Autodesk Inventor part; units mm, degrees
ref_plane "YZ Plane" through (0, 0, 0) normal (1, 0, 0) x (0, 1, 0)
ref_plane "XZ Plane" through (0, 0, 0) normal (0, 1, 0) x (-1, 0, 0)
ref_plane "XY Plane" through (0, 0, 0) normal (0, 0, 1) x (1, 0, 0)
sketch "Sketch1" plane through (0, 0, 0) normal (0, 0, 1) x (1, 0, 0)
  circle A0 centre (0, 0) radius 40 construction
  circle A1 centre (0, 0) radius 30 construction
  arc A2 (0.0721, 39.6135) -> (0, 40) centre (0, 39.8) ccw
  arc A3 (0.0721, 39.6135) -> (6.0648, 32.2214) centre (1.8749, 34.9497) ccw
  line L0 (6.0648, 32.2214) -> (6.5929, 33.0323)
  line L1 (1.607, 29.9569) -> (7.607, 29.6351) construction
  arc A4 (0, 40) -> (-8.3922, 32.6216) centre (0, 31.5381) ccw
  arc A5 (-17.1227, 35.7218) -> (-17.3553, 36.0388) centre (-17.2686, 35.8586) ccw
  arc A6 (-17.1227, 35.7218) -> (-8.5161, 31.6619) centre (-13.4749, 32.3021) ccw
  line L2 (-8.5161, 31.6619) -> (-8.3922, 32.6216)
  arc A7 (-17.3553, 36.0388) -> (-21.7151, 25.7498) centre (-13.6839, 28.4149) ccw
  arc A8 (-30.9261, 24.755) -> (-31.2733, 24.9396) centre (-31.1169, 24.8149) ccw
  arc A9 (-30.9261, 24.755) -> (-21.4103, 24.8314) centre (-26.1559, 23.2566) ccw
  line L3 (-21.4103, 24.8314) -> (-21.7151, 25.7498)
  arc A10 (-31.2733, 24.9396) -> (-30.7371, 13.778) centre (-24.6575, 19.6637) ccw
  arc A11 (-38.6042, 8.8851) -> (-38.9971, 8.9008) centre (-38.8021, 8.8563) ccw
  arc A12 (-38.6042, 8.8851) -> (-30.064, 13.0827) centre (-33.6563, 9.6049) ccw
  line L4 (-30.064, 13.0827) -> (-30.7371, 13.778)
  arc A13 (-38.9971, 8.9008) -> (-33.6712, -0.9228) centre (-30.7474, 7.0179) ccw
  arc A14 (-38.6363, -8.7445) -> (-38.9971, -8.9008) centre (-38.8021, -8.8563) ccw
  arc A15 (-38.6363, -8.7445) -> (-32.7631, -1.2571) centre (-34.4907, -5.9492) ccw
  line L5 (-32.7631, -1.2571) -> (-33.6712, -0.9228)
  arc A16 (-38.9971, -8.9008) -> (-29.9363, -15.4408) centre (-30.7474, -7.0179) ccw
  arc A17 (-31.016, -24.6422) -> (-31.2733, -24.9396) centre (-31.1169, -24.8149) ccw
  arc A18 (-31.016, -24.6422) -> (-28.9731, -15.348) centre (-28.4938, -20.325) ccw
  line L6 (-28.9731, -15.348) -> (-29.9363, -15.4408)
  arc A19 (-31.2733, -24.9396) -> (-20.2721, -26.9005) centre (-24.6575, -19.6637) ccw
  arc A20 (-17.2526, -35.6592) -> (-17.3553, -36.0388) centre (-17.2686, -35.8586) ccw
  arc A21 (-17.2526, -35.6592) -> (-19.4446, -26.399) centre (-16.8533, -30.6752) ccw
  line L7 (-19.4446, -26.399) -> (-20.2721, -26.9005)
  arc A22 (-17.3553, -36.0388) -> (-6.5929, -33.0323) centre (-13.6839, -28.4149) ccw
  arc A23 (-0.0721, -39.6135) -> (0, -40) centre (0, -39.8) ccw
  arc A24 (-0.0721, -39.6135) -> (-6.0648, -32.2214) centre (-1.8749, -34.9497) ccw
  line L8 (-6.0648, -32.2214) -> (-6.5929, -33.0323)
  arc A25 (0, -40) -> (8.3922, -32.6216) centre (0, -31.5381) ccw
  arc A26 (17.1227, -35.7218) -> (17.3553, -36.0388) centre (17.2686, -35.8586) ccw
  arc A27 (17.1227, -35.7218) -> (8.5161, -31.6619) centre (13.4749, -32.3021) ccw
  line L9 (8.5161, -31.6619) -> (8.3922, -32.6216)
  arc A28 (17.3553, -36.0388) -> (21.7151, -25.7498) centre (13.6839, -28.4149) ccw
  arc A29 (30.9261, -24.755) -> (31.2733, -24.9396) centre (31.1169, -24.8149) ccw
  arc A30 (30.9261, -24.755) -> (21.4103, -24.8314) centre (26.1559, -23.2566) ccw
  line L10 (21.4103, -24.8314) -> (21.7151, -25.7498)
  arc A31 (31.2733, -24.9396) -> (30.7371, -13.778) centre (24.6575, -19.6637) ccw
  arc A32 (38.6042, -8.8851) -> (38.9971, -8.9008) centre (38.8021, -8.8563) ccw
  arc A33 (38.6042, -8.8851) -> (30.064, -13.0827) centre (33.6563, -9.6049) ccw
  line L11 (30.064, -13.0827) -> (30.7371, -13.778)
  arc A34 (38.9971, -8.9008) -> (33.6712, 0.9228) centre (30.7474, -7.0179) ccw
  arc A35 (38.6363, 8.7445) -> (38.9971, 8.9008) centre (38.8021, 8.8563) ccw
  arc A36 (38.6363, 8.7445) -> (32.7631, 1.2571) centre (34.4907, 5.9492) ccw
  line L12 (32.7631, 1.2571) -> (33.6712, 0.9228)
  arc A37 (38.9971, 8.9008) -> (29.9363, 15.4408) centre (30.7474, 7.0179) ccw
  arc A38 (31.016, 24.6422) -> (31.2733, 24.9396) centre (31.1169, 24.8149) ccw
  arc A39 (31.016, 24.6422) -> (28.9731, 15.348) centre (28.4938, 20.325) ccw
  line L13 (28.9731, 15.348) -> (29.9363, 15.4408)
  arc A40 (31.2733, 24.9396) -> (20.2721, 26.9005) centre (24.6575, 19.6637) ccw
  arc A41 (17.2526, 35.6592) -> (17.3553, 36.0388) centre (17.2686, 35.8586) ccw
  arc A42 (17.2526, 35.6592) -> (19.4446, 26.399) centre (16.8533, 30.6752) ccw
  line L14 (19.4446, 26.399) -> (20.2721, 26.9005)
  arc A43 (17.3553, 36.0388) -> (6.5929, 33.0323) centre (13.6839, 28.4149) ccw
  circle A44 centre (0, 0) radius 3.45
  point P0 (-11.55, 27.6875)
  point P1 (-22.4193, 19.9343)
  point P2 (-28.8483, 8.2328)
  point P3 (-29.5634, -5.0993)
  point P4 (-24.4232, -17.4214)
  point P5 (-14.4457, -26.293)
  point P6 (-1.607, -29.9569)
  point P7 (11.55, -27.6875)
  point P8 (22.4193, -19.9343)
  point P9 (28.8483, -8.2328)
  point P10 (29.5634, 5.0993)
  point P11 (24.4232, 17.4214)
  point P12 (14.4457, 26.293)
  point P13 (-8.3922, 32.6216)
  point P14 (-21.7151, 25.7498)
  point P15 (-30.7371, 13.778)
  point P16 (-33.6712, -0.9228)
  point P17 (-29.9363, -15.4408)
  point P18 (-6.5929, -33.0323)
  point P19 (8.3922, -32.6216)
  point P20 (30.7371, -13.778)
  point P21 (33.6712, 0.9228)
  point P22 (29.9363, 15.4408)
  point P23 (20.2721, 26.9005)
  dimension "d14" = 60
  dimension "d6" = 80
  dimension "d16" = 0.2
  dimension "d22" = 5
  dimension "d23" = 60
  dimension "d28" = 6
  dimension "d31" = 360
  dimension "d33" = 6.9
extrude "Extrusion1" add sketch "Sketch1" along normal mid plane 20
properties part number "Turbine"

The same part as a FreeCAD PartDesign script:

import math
import FreeCAD as App
import Part
import Sketcher

V = App.Vector

doc = App.newDocument("Part")
body = doc.addObject("PartDesign::Body", "Body")

sketch1 = doc.addObject("Sketcher::SketchObject", "Sketch")
body.addObject(sketch1)
sketch1.AttachmentSupport = (doc.XY_Plane, [""])
sketch1.MapMode = "FlatFace"
sketch1.addGeometry([
    Part.ArcOfCircle(Part.Circle(V(1.8749, 34.9497, 0), V(0, 0, 1), 5.000112), math.radians(111.134096), math.radians(326.929389)),
    Part.ArcOfCircle(Part.Circle(V(0, 39.8, 0), V(0, 0, 1), 0.199952), math.radians(-68.863739), math.radians(90)),
    Part.ArcOfCircle(Part.Circle(V(0, 31.5381, 0), V(0, 0, 1), 8.4619), math.radians(90), math.radians(172.643353)),
    Part.LineSegment(V(-8.3922, 32.6216, 0), V(-8.5161, 31.6619, 0)),
    Part.ArcOfCircle(Part.Circle(V(-13.4749, 32.3021, 0), V(0, 0, 1), 5.000079), math.radians(136.848551), math.radians(352.643588)),
    Part.ArcOfCircle(Part.Circle(V(-17.2686, 35.8586, 0), V(0, 0, 1), 0.200003), math.radians(-43.156308), math.radians(115.6937)),
    Part.ArcOfCircle(Part.Circle(V(-13.6839, 28.4149, 0), V(0, 0, 1), 8.461857), math.radians(115.713818), math.radians(198.35808)),
    Part.LineSegment(V(-21.7151, 25.7498, 0), V(-21.4103, 24.8314, 0)),
    Part.ArcOfCircle(Part.Circle(V(-26.1559, 23.2566, 0), V(0, 0, 1), 5.000001), math.radians(162.56162), math.radians(378.358127)),
    Part.ArcOfCircle(Part.Circle(V(-31.1169, 24.8149, 0), V(0, 0, 1), 0.199982), math.radians(-17.429227), math.radians(141.434134)),
    Part.ArcOfCircle(Part.Circle(V(-24.6575, 19.6637, 0), V(0, 0, 1), 8.461911), math.radians(141.428701), math.radians(224.071592)),
    Part.LineSegment(V(-30.7371, 13.778, 0), V(-30.064, 13.0827, 0)),
    Part.ArcOfCircle(Part.Circle(V(-33.6563, 9.6049, 0), V(0, 0, 1), 4.999983), math.radians(-171.722911), math.radians(44.072178)),
    Part.ArcOfCircle(Part.Circle(V(-38.8021, 8.8563, 0), V(0, 0, 1), 0.199985), math.radians(8.280017), math.radians(167.144945)),
    Part.ArcOfCircle(Part.Circle(V(-30.7474, 7.0179, 0), V(0, 0, 1), 8.461847), math.radians(167.143122), math.radians(249.786075)),
    Part.LineSegment(V(-33.6712, -0.9228, 0), V(-32.7631, -1.2571, 0)),
    Part.ArcOfCircle(Part.Circle(V(-34.4907, -5.9492, 0), V(0, 0, 1), 4.99997), math.radians(-146.008954), math.radians(69.786629)),
    Part.ArcOfCircle(Part.Circle(V(-38.8021, -8.8563, 0), V(0, 0, 1), 0.199972), math.radians(33.99204), math.radians(192.855055)),
    Part.ArcOfCircle(Part.Circle(V(-30.7474, -7.0179, 0), V(0, 0, 1), 8.461847), math.radians(-167.143122), math.radians(-84.499549)),
    Part.LineSegment(V(-29.9363, -15.4408, 0), V(-28.9731, -15.348, 0)),
    Part.ArcOfCircle(Part.Circle(V(-28.4938, -20.325, 0), V(0, 0, 1), 4.999971), math.radians(-120.29438), math.radians(95.500792)),
    Part.ArcOfCircle(Part.Circle(V(-31.1169, -24.8149, 0), V(0, 0, 1), 0.200015), math.radians(59.704386), math.radians(218.565866)),
    Part.ArcOfCircle(Part.Circle(V(-24.6575, -19.6637, 0), V(0, 0, 1), 8.461911), math.radians(-141.428701), math.radians(-58.784721)),
    Part.LineSegment(V(-20.2721, -26.9005, 0), V(-19.4446, -26.399, 0)),
    Part.ArcOfCircle(Part.Circle(V(-16.8533, -30.6752, 0), V(0, 0, 1), 4.99997), math.radians(-94.580546), math.radians(121.215107)),
    Part.ArcOfCircle(Part.Circle(V(-17.2686, -35.8586, 0), V(0, 0, 1), 0.200041), math.radians(85.412374), math.radians(244.3063)),
    Part.ArcOfCircle(Part.Circle(V(-13.6839, -28.4149, 0), V(0, 0, 1), 8.461857), math.radians(-115.713818), math.radians(-33.070704)),
    Part.LineSegment(V(-6.5929, -33.0323, 0), V(-6.0648, -32.2214, 0)),
    Part.ArcOfCircle(Part.Circle(V(-1.8749, -34.9497, 0), V(0, 0, 1), 5.000112), math.radians(-68.865904), math.radians(146.929389)),
    Part.ArcOfCircle(Part.Circle(V(0, -39.8, 0), V(0, 0, 1), 0.199952), math.radians(111.136261), math.radians(270)),
    Part.ArcOfCircle(Part.Circle(V(0, -31.5381, 0), V(0, 0, 1), 8.4619), math.radians(-90), math.radians(-7.356647)),
    Part.LineSegment(V(8.3922, -32.6216, 0), V(8.5161, -31.6619, 0)),
    Part.ArcOfCircle(Part.Circle(V(13.4749, -32.3021, 0), V(0, 0, 1), 5.000079), math.radians(-43.151449), math.radians(172.643588)),
    Part.ArcOfCircle(Part.Circle(V(17.2686, -35.8586, 0), V(0, 0, 1), 0.200003), math.radians(136.843692), math.radians(295.6937)),
    Part.ArcOfCircle(Part.Circle(V(13.6839, -28.4149, 0), V(0, 0, 1), 8.461857), math.radians(-64.286182), math.radians(18.35808)),
    Part.LineSegment(V(21.7151, -25.7498, 0), V(21.4103, -24.8314, 0)),
    Part.ArcOfCircle(Part.Circle(V(26.1559, -23.2566, 0), V(0, 0, 1), 5.000001), math.radians(-17.43838), math.radians(198.358127)),
    Part.ArcOfCircle(Part.Circle(V(31.1169, -24.8149, 0), V(0, 0, 1), 0.199982), math.radians(162.570773), math.radians(321.434134)),
    Part.ArcOfCircle(Part.Circle(V(24.6575, -19.6637, 0), V(0, 0, 1), 8.461911), math.radians(-38.571299), math.radians(44.071592)),
    Part.LineSegment(V(30.7371, -13.778, 0), V(30.064, -13.0827, 0)),
    Part.ArcOfCircle(Part.Circle(V(33.6563, -9.6049, 0), V(0, 0, 1), 4.999983), math.radians(8.277089), math.radians(224.072178)),
    Part.ArcOfCircle(Part.Circle(V(38.8021, -8.8563, 0), V(0, 0, 1), 0.199985), math.radians(-171.719983), math.radians(-12.855055)),
    Part.ArcOfCircle(Part.Circle(V(30.7474, -7.0179, 0), V(0, 0, 1), 8.461847), math.radians(-12.856878), math.radians(69.786075)),
    Part.LineSegment(V(33.6712, 0.9228, 0), V(32.7631, 1.2571, 0)),
    Part.ArcOfCircle(Part.Circle(V(34.4907, 5.9492, 0), V(0, 0, 1), 4.99997), math.radians(33.991046), math.radians(249.786629)),
    Part.ArcOfCircle(Part.Circle(V(38.8021, 8.8563, 0), V(0, 0, 1), 0.199972), math.radians(-146.00796), math.radians(12.855055)),
    Part.ArcOfCircle(Part.Circle(V(30.7474, 7.0179, 0), V(0, 0, 1), 8.461847), math.radians(12.856878), math.radians(95.500451)),
    Part.LineSegment(V(29.9363, 15.4408, 0), V(28.9731, 15.348, 0)),
    Part.ArcOfCircle(Part.Circle(V(28.4938, 20.325, 0), V(0, 0, 1), 4.999971), math.radians(59.70562), math.radians(275.500792)),
    Part.ArcOfCircle(Part.Circle(V(31.1169, 24.8149, 0), V(0, 0, 1), 0.200015), math.radians(-120.295614), math.radians(38.565866)),
    Part.ArcOfCircle(Part.Circle(V(24.6575, 19.6637, 0), V(0, 0, 1), 8.461911), math.radians(38.571299), math.radians(121.215279)),
    Part.LineSegment(V(20.2721, 26.9005, 0), V(19.4446, 26.399, 0)),
    Part.ArcOfCircle(Part.Circle(V(16.8533, 30.6752, 0), V(0, 0, 1), 4.99997), math.radians(85.419454), math.radians(301.215107)),
    Part.ArcOfCircle(Part.Circle(V(17.2686, 35.8586, 0), V(0, 0, 1), 0.200041), math.radians(-94.587626), math.radians(64.3063)),
    Part.ArcOfCircle(Part.Circle(V(13.6839, 28.4149, 0), V(0, 0, 1), 8.461857), math.radians(64.286182), math.radians(146.929296)),
    Part.LineSegment(V(6.5929, 33.0323, 0), V(6.0648, 32.2214, 0)),
    Part.Circle(V(0, 0, 0), V(0, 0, 1), 3.45),
], False)
sketch1.addConstraint([
    Sketcher.Constraint("Coincident", 0, 1, 1, 1),
    Sketcher.Constraint("Coincident", 1, 2, 2, 1),
    Sketcher.Constraint("Coincident", 2, 2, 3, 1),
    Sketcher.Constraint("Coincident", 3, 2, 4, 2),
    Sketcher.Constraint("Coincident", 4, 1, 5, 1),
    Sketcher.Constraint("Coincident", 5, 2, 6, 1),
    Sketcher.Constraint("Coincident", 6, 2, 7, 1),
    Sketcher.Constraint("Coincident", 7, 2, 8, 2),
    Sketcher.Constraint("Coincident", 8, 1, 9, 1),
    Sketcher.Constraint("Coincident", 9, 2, 10, 1),
    Sketcher.Constraint("Coincident", 10, 2, 11, 1),
    Sketcher.Constraint("Coincident", 11, 2, 12, 2),
    Sketcher.Constraint("Coincident", 12, 1, 13, 1),
    Sketcher.Constraint("Coincident", 13, 2, 14, 1),
    Sketcher.Constraint("Coincident", 14, 2, 15, 1),
    Sketcher.Constraint("Coincident", 15, 2, 16, 2),
    Sketcher.Constraint("Coincident", 16, 1, 17, 1),
    Sketcher.Constraint("Coincident", 17, 2, 18, 1),
    Sketcher.Constraint("Coincident", 18, 2, 19, 1),
    Sketcher.Constraint("Coincident", 19, 2, 20, 2),
    Sketcher.Constraint("Coincident", 20, 1, 21, 1),
    Sketcher.Constraint("Coincident", 21, 2, 22, 1),
    Sketcher.Constraint("Coincident", 22, 2, 23, 1),
    Sketcher.Constraint("Coincident", 23, 2, 24, 2),
    Sketcher.Constraint("Coincident", 24, 1, 25, 1),
    Sketcher.Constraint("Coincident", 25, 2, 26, 1),
    Sketcher.Constraint("Coincident", 26, 2, 27, 1),
    Sketcher.Constraint("Coincident", 27, 2, 28, 2),
    Sketcher.Constraint("Coincident", 28, 1, 29, 1),
    Sketcher.Constraint("Coincident", 29, 2, 30, 1),
    Sketcher.Constraint("Coincident", 30, 2, 31, 1),
    Sketcher.Constraint("Coincident", 31, 2, 32, 2),
    Sketcher.Constraint("Coincident", 32, 1, 33, 1),
    Sketcher.Constraint("Coincident", 33, 2, 34, 1),
    Sketcher.Constraint("Coincident", 34, 2, 35, 1),
    Sketcher.Constraint("Coincident", 35, 2, 36, 2),
    Sketcher.Constraint("Coincident", 36, 1, 37, 1),
    Sketcher.Constraint("Coincident", 37, 2, 38, 1),
    Sketcher.Constraint("Coincident", 38, 2, 39, 1),
    Sketcher.Constraint("Coincident", 39, 2, 40, 2),
    Sketcher.Constraint("Coincident", 40, 1, 41, 1),
    Sketcher.Constraint("Coincident", 41, 2, 42, 1),
    Sketcher.Constraint("Coincident", 42, 2, 43, 1),
    Sketcher.Constraint("Coincident", 43, 2, 44, 2),
    Sketcher.Constraint("Coincident", 44, 1, 45, 1),
    Sketcher.Constraint("Coincident", 45, 2, 46, 1),
    Sketcher.Constraint("Coincident", 46, 2, 47, 1),
    Sketcher.Constraint("Coincident", 47, 2, 48, 2),
    Sketcher.Constraint("Coincident", 48, 1, 49, 1),
    Sketcher.Constraint("Coincident", 49, 2, 50, 1),
    Sketcher.Constraint("Coincident", 50, 2, 51, 1),
    Sketcher.Constraint("Coincident", 51, 2, 52, 2),
    Sketcher.Constraint("Coincident", 52, 1, 53, 1),
    Sketcher.Constraint("Coincident", 53, 2, 54, 1),
    Sketcher.Constraint("Coincident", 54, 2, 55, 1),
    Sketcher.Constraint("Coincident", 55, 2, 0, 2),
    Sketcher.Constraint("Coincident", 56, 3, -1, 1),
    Sketcher.Constraint("PointOnObject", 1, 3, -2),
    Sketcher.Constraint("PointOnObject", 2, 3, -2),
    Sketcher.Constraint("PointOnObject", 29, 3, -2),
    Sketcher.Constraint("PointOnObject", 30, 3, -2),
    Sketcher.Constraint("PointOnObject", 1, 2, -2),
    Sketcher.Constraint("PointOnObject", 29, 2, -2),
    Sketcher.Constraint("Radius", 0, 5.0),
    Sketcher.Constraint("Radius", 4, 5.0),
    Sketcher.Constraint("Radius", 8, 5.0),
    Sketcher.Constraint("Radius", 12, 5.0),
    Sketcher.Constraint("Radius", 16, 5.0),
    Sketcher.Constraint("Radius", 20, 5.0),
    Sketcher.Constraint("Radius", 24, 5.0),
    Sketcher.Constraint("Radius", 28, 5.0),
    Sketcher.Constraint("Radius", 32, 5.0),
    Sketcher.Constraint("Radius", 36, 5.0),
    Sketcher.Constraint("Radius", 40, 5.0),
    Sketcher.Constraint("Radius", 44, 5.0),
    Sketcher.Constraint("Radius", 48, 5.0),
    Sketcher.Constraint("Radius", 52, 5.0),
    Sketcher.Constraint("Diameter", 56, 6.9),
    Sketcher.Constraint("Radius", 1, 0.2),
    Sketcher.Constraint("Radius", 5, 0.2),
    Sketcher.Constraint("Radius", 9, 0.2),
    Sketcher.Constraint("Radius", 13, 0.2),
    Sketcher.Constraint("Radius", 17, 0.2),
    Sketcher.Constraint("Radius", 21, 0.2),
    Sketcher.Constraint("Radius", 25, 0.2),
    Sketcher.Constraint("Radius", 29, 0.2),
    Sketcher.Constraint("Radius", 33, 0.2),
    Sketcher.Constraint("Radius", 37, 0.2),
    Sketcher.Constraint("Radius", 41, 0.2),
    Sketcher.Constraint("Radius", 45, 0.2),
    Sketcher.Constraint("Radius", 49, 0.2),
    Sketcher.Constraint("Radius", 53, 0.2),
    Sketcher.Constraint("DistanceY", -1, 1, 1, 2, 40.0),
    Sketcher.Constraint("DistanceY", 29, 2, -1, 1, 40.0),
    Sketcher.Constraint("Radius", 2, 8.462),
    Sketcher.Constraint("Radius", 10, 8.462),
    Sketcher.Constraint("Radius", 22, 8.462),
    Sketcher.Constraint("Radius", 30, 8.462),
    Sketcher.Constraint("Radius", 38, 8.462),
    Sketcher.Constraint("Radius", 50, 8.462),
    Sketcher.Constraint("Radius", 6, 8.4619),
    Sketcher.Constraint("Radius", 14, 8.4618),
    Sketcher.Constraint("Radius", 18, 8.4618),
    Sketcher.Constraint("Radius", 26, 8.4619),
    Sketcher.Constraint("Radius", 34, 8.4619),
    Sketcher.Constraint("Radius", 42, 8.4618),
    Sketcher.Constraint("Radius", 46, 8.4618),
    Sketcher.Constraint("Radius", 54, 8.4619),
    Sketcher.Constraint("DistanceX", -1, 1, 0, 3, 1.875),
    Sketcher.Constraint("DistanceX", 4, 3, -1, 1, 13.475),
    Sketcher.Constraint("DistanceY", -1, 1, 4, 3, 32.302),
    Sketcher.Constraint("DistanceX", 6, 3, -1, 1, 13.684),
    Sketcher.Constraint("DistanceY", -1, 1, 6, 3, 28.415),
    Sketcher.Constraint("DistanceX", 8, 3, -1, 1, 26.156),
    Sketcher.Constraint("DistanceX", 9, 3, -1, 1, 31.117),
    Sketcher.Constraint("DistanceY", -1, 1, 9, 3, 24.815),
    Sketcher.Constraint("DistanceY", -1, 1, 12, 3, 9.605),
    Sketcher.Constraint("DistanceX", 13, 3, -1, 1, 38.802),
    Sketcher.Constraint("DistanceY", -1, 1, 14, 3, 7.018),
    Sketcher.Constraint("DistanceX", 17, 3, -1, 1, 38.802),
    Sketcher.Constraint("DistanceY", 18, 3, -1, 1, 7.018),
    Sketcher.Constraint("DistanceY", 20, 3, -1, 1, 20.325),
    Sketcher.Constraint("DistanceX", 21, 3, -1, 1, 31.117),
    Sketcher.Constraint("DistanceY", 21, 3, -1, 1, 24.815),
    Sketcher.Constraint("DistanceX", 26, 3, -1, 1, 13.684),
    Sketcher.Constraint("DistanceY", 26, 3, -1, 1, 28.415),
    Sketcher.Constraint("DistanceX", 28, 3, -1, 1, 1.875),
    Sketcher.Constraint("DistanceX", -1, 1, 32, 3, 13.475),
    Sketcher.Constraint("DistanceY", 32, 3, -1, 1, 32.302),
    Sketcher.Constraint("DistanceX", -1, 1, 34, 3, 13.684),
    Sketcher.Constraint("DistanceY", 34, 3, -1, 1, 28.415),
    Sketcher.Constraint("DistanceX", -1, 1, 36, 3, 26.156),
    Sketcher.Constraint("DistanceX", -1, 1, 37, 3, 31.117),
    Sketcher.Constraint("DistanceY", 37, 3, -1, 1, 24.815),
    Sketcher.Constraint("DistanceY", 40, 3, -1, 1, 9.605),
    Sketcher.Constraint("DistanceX", -1, 1, 41, 3, 38.802),
    Sketcher.Constraint("DistanceY", 42, 3, -1, 1, 7.018),
    Sketcher.Constraint("DistanceX", -1, 1, 45, 3, 38.802),
    Sketcher.Constraint("DistanceY", -1, 1, 46, 3, 7.018),
    Sketcher.Constraint("DistanceY", -1, 1, 48, 3, 20.325),
    Sketcher.Constraint("DistanceX", -1, 1, 49, 3, 31.117),
    Sketcher.Constraint("DistanceY", -1, 1, 49, 3, 24.815),
    Sketcher.Constraint("DistanceX", -1, 1, 54, 3, 13.684),
    Sketcher.Constraint("DistanceY", -1, 1, 54, 3, 28.415),
    Sketcher.Constraint("DistanceX", -1, 1, 0, 1, 0.072),
    Sketcher.Constraint("DistanceX", 3, 2, -1, 1, 8.516),
    Sketcher.Constraint("DistanceX", 6, 2, -1, 1, 21.715),
    Sketcher.Constraint("DistanceX", 8, 1, -1, 1, 30.926),
    Sketcher.Constraint("DistanceY", -1, 1, 10, 2, 13.778),
    Sketcher.Constraint("DistanceX", 11, 2, -1, 1, 30.064),
    Sketcher.Constraint("DistanceY", -1, 1, 12, 1, 8.885),
    Sketcher.Constraint("DistanceX", 13, 2, -1, 1, 38.997),
    Sketcher.Constraint("DistanceX", 15, 2, -1, 1, 32.763),
    Sketcher.Constraint("DistanceY", 15, 2, -1, 1, 1.257),
    Sketcher.Constraint("DistanceX", 17, 2, -1, 1, 38.997),
    Sketcher.Constraint("DistanceX", 19, 2, -1, 1, 28.973),
    Sketcher.Constraint("DistanceX", 20, 1, -1, 1, 31.016),
    Sketcher.Constraint("DistanceX", 22, 2, -1, 1, 20.272),
    Sketcher.Constraint("DistanceY", 23, 2, -1, 1, 26.399),
    Sketcher.Constraint("DistanceX", 26, 2, -1, 1, 6.593),
    Sketcher.Constraint("DistanceX", 28, 1, -1, 1, 0.072),
    Sketcher.Constraint("DistanceX", -1, 1, 31, 2, 8.516),
    Sketcher.Constraint("DistanceX", -1, 1, 34, 2, 21.715),
    Sketcher.Constraint("DistanceX", -1, 1, 36, 1, 30.926),
    Sketcher.Constraint("DistanceY", 38, 2, -1, 1, 13.778),
    Sketcher.Constraint("DistanceX", -1, 1, 39, 2, 30.064),
    Sketcher.Constraint("DistanceY", 40, 1, -1, 1, 8.885),
    Sketcher.Constraint("DistanceX", -1, 1, 41, 2, 38.997),
    Sketcher.Constraint("DistanceX", -1, 1, 43, 2, 32.763),
    Sketcher.Constraint("DistanceY", -1, 1, 43, 2, 1.257),
    Sketcher.Constraint("DistanceX", -1, 1, 45, 2, 38.997),
    Sketcher.Constraint("DistanceX", -1, 1, 47, 2, 28.973),
    Sketcher.Constraint("DistanceX", -1, 1, 48, 1, 31.016),
    Sketcher.Constraint("DistanceX", -1, 1, 50, 2, 20.272),
    Sketcher.Constraint("DistanceY", -1, 1, 51, 2, 26.399),
    Sketcher.Constraint("DistanceX", -1, 1, 54, 2, 6.593),
    Sketcher.Constraint("Distance", 3, 0.9677),
    Sketcher.Constraint("Distance", 7, 0.9677),
    Sketcher.Constraint("Distance", 11, 0.9677),
    Sketcher.Constraint("Distance", 15, 0.9677),
    Sketcher.Constraint("Distance", 19, 0.9677),
    Sketcher.Constraint("Distance", 23, 0.9676),
    Sketcher.Constraint("Distance", 27, 0.9677),
    Sketcher.Constraint("Distance", 31, 0.9677),
    Sketcher.Constraint("Distance", 35, 0.9677),
    Sketcher.Constraint("Distance", 39, 0.9677),
    Sketcher.Constraint("Distance", 43, 0.9677),
    Sketcher.Constraint("Distance", 47, 0.9677),
    Sketcher.Constraint("Distance", 51, 0.9676),
    Sketcher.Constraint("Distance", 55, 0.9677),
    Sketcher.Constraint("DistanceX", 10, 3, -1, 1, 24.6575),
    Sketcher.Constraint("DistanceX", 16, 3, -1, 1, 34.4907),
    Sketcher.Constraint("DistanceX", 22, 3, -1, 1, 24.6575),
    Sketcher.Constraint("DistanceX", 24, 3, -1, 1, 16.8533),
    Sketcher.Constraint("DistanceX", -1, 1, 38, 3, 24.6575),
    Sketcher.Constraint("DistanceX", -1, 1, 44, 3, 34.4907),
    Sketcher.Constraint("DistanceX", -1, 1, 50, 3, 24.6575),
    Sketcher.Constraint("DistanceX", -1, 1, 52, 3, 16.8533),
    Sketcher.Constraint("DistanceX", 4, 1, -1, 1, 17.1227),
    Sketcher.Constraint("DistanceX", 5, 2, -1, 1, 17.3553),
    Sketcher.Constraint("DistanceX", 9, 2, -1, 1, 31.2733),
    Sketcher.Constraint("DistanceX", 16, 1, -1, 1, 38.6363),
    Sketcher.Constraint("DistanceX", 21, 2, -1, 1, 31.2733),
    Sketcher.Constraint("DistanceX", 24, 1, -1, 1, 17.2526),
    Sketcher.Constraint("DistanceX", 25, 2, -1, 1, 17.3553),
    Sketcher.Constraint("DistanceX", -1, 1, 32, 1, 17.1227),
    Sketcher.Constraint("DistanceX", -1, 1, 33, 2, 17.3553),
    Sketcher.Constraint("DistanceX", -1, 1, 37, 2, 31.2733),
    Sketcher.Constraint("DistanceX", -1, 1, 44, 1, 38.6363),
    Sketcher.Constraint("DistanceX", -1, 1, 49, 2, 31.2733),
    Sketcher.Constraint("DistanceX", -1, 1, 52, 1, 17.2526),
    Sketcher.Constraint("DistanceX", -1, 1, 53, 2, 17.3553),
])
pad1 = doc.addObject("PartDesign::Pad", "Pad")
body.addObject(pad1)
pad1.Profile = sketch1
pad1.Length = 20
pad1.Midplane = True

doc.recompute()
